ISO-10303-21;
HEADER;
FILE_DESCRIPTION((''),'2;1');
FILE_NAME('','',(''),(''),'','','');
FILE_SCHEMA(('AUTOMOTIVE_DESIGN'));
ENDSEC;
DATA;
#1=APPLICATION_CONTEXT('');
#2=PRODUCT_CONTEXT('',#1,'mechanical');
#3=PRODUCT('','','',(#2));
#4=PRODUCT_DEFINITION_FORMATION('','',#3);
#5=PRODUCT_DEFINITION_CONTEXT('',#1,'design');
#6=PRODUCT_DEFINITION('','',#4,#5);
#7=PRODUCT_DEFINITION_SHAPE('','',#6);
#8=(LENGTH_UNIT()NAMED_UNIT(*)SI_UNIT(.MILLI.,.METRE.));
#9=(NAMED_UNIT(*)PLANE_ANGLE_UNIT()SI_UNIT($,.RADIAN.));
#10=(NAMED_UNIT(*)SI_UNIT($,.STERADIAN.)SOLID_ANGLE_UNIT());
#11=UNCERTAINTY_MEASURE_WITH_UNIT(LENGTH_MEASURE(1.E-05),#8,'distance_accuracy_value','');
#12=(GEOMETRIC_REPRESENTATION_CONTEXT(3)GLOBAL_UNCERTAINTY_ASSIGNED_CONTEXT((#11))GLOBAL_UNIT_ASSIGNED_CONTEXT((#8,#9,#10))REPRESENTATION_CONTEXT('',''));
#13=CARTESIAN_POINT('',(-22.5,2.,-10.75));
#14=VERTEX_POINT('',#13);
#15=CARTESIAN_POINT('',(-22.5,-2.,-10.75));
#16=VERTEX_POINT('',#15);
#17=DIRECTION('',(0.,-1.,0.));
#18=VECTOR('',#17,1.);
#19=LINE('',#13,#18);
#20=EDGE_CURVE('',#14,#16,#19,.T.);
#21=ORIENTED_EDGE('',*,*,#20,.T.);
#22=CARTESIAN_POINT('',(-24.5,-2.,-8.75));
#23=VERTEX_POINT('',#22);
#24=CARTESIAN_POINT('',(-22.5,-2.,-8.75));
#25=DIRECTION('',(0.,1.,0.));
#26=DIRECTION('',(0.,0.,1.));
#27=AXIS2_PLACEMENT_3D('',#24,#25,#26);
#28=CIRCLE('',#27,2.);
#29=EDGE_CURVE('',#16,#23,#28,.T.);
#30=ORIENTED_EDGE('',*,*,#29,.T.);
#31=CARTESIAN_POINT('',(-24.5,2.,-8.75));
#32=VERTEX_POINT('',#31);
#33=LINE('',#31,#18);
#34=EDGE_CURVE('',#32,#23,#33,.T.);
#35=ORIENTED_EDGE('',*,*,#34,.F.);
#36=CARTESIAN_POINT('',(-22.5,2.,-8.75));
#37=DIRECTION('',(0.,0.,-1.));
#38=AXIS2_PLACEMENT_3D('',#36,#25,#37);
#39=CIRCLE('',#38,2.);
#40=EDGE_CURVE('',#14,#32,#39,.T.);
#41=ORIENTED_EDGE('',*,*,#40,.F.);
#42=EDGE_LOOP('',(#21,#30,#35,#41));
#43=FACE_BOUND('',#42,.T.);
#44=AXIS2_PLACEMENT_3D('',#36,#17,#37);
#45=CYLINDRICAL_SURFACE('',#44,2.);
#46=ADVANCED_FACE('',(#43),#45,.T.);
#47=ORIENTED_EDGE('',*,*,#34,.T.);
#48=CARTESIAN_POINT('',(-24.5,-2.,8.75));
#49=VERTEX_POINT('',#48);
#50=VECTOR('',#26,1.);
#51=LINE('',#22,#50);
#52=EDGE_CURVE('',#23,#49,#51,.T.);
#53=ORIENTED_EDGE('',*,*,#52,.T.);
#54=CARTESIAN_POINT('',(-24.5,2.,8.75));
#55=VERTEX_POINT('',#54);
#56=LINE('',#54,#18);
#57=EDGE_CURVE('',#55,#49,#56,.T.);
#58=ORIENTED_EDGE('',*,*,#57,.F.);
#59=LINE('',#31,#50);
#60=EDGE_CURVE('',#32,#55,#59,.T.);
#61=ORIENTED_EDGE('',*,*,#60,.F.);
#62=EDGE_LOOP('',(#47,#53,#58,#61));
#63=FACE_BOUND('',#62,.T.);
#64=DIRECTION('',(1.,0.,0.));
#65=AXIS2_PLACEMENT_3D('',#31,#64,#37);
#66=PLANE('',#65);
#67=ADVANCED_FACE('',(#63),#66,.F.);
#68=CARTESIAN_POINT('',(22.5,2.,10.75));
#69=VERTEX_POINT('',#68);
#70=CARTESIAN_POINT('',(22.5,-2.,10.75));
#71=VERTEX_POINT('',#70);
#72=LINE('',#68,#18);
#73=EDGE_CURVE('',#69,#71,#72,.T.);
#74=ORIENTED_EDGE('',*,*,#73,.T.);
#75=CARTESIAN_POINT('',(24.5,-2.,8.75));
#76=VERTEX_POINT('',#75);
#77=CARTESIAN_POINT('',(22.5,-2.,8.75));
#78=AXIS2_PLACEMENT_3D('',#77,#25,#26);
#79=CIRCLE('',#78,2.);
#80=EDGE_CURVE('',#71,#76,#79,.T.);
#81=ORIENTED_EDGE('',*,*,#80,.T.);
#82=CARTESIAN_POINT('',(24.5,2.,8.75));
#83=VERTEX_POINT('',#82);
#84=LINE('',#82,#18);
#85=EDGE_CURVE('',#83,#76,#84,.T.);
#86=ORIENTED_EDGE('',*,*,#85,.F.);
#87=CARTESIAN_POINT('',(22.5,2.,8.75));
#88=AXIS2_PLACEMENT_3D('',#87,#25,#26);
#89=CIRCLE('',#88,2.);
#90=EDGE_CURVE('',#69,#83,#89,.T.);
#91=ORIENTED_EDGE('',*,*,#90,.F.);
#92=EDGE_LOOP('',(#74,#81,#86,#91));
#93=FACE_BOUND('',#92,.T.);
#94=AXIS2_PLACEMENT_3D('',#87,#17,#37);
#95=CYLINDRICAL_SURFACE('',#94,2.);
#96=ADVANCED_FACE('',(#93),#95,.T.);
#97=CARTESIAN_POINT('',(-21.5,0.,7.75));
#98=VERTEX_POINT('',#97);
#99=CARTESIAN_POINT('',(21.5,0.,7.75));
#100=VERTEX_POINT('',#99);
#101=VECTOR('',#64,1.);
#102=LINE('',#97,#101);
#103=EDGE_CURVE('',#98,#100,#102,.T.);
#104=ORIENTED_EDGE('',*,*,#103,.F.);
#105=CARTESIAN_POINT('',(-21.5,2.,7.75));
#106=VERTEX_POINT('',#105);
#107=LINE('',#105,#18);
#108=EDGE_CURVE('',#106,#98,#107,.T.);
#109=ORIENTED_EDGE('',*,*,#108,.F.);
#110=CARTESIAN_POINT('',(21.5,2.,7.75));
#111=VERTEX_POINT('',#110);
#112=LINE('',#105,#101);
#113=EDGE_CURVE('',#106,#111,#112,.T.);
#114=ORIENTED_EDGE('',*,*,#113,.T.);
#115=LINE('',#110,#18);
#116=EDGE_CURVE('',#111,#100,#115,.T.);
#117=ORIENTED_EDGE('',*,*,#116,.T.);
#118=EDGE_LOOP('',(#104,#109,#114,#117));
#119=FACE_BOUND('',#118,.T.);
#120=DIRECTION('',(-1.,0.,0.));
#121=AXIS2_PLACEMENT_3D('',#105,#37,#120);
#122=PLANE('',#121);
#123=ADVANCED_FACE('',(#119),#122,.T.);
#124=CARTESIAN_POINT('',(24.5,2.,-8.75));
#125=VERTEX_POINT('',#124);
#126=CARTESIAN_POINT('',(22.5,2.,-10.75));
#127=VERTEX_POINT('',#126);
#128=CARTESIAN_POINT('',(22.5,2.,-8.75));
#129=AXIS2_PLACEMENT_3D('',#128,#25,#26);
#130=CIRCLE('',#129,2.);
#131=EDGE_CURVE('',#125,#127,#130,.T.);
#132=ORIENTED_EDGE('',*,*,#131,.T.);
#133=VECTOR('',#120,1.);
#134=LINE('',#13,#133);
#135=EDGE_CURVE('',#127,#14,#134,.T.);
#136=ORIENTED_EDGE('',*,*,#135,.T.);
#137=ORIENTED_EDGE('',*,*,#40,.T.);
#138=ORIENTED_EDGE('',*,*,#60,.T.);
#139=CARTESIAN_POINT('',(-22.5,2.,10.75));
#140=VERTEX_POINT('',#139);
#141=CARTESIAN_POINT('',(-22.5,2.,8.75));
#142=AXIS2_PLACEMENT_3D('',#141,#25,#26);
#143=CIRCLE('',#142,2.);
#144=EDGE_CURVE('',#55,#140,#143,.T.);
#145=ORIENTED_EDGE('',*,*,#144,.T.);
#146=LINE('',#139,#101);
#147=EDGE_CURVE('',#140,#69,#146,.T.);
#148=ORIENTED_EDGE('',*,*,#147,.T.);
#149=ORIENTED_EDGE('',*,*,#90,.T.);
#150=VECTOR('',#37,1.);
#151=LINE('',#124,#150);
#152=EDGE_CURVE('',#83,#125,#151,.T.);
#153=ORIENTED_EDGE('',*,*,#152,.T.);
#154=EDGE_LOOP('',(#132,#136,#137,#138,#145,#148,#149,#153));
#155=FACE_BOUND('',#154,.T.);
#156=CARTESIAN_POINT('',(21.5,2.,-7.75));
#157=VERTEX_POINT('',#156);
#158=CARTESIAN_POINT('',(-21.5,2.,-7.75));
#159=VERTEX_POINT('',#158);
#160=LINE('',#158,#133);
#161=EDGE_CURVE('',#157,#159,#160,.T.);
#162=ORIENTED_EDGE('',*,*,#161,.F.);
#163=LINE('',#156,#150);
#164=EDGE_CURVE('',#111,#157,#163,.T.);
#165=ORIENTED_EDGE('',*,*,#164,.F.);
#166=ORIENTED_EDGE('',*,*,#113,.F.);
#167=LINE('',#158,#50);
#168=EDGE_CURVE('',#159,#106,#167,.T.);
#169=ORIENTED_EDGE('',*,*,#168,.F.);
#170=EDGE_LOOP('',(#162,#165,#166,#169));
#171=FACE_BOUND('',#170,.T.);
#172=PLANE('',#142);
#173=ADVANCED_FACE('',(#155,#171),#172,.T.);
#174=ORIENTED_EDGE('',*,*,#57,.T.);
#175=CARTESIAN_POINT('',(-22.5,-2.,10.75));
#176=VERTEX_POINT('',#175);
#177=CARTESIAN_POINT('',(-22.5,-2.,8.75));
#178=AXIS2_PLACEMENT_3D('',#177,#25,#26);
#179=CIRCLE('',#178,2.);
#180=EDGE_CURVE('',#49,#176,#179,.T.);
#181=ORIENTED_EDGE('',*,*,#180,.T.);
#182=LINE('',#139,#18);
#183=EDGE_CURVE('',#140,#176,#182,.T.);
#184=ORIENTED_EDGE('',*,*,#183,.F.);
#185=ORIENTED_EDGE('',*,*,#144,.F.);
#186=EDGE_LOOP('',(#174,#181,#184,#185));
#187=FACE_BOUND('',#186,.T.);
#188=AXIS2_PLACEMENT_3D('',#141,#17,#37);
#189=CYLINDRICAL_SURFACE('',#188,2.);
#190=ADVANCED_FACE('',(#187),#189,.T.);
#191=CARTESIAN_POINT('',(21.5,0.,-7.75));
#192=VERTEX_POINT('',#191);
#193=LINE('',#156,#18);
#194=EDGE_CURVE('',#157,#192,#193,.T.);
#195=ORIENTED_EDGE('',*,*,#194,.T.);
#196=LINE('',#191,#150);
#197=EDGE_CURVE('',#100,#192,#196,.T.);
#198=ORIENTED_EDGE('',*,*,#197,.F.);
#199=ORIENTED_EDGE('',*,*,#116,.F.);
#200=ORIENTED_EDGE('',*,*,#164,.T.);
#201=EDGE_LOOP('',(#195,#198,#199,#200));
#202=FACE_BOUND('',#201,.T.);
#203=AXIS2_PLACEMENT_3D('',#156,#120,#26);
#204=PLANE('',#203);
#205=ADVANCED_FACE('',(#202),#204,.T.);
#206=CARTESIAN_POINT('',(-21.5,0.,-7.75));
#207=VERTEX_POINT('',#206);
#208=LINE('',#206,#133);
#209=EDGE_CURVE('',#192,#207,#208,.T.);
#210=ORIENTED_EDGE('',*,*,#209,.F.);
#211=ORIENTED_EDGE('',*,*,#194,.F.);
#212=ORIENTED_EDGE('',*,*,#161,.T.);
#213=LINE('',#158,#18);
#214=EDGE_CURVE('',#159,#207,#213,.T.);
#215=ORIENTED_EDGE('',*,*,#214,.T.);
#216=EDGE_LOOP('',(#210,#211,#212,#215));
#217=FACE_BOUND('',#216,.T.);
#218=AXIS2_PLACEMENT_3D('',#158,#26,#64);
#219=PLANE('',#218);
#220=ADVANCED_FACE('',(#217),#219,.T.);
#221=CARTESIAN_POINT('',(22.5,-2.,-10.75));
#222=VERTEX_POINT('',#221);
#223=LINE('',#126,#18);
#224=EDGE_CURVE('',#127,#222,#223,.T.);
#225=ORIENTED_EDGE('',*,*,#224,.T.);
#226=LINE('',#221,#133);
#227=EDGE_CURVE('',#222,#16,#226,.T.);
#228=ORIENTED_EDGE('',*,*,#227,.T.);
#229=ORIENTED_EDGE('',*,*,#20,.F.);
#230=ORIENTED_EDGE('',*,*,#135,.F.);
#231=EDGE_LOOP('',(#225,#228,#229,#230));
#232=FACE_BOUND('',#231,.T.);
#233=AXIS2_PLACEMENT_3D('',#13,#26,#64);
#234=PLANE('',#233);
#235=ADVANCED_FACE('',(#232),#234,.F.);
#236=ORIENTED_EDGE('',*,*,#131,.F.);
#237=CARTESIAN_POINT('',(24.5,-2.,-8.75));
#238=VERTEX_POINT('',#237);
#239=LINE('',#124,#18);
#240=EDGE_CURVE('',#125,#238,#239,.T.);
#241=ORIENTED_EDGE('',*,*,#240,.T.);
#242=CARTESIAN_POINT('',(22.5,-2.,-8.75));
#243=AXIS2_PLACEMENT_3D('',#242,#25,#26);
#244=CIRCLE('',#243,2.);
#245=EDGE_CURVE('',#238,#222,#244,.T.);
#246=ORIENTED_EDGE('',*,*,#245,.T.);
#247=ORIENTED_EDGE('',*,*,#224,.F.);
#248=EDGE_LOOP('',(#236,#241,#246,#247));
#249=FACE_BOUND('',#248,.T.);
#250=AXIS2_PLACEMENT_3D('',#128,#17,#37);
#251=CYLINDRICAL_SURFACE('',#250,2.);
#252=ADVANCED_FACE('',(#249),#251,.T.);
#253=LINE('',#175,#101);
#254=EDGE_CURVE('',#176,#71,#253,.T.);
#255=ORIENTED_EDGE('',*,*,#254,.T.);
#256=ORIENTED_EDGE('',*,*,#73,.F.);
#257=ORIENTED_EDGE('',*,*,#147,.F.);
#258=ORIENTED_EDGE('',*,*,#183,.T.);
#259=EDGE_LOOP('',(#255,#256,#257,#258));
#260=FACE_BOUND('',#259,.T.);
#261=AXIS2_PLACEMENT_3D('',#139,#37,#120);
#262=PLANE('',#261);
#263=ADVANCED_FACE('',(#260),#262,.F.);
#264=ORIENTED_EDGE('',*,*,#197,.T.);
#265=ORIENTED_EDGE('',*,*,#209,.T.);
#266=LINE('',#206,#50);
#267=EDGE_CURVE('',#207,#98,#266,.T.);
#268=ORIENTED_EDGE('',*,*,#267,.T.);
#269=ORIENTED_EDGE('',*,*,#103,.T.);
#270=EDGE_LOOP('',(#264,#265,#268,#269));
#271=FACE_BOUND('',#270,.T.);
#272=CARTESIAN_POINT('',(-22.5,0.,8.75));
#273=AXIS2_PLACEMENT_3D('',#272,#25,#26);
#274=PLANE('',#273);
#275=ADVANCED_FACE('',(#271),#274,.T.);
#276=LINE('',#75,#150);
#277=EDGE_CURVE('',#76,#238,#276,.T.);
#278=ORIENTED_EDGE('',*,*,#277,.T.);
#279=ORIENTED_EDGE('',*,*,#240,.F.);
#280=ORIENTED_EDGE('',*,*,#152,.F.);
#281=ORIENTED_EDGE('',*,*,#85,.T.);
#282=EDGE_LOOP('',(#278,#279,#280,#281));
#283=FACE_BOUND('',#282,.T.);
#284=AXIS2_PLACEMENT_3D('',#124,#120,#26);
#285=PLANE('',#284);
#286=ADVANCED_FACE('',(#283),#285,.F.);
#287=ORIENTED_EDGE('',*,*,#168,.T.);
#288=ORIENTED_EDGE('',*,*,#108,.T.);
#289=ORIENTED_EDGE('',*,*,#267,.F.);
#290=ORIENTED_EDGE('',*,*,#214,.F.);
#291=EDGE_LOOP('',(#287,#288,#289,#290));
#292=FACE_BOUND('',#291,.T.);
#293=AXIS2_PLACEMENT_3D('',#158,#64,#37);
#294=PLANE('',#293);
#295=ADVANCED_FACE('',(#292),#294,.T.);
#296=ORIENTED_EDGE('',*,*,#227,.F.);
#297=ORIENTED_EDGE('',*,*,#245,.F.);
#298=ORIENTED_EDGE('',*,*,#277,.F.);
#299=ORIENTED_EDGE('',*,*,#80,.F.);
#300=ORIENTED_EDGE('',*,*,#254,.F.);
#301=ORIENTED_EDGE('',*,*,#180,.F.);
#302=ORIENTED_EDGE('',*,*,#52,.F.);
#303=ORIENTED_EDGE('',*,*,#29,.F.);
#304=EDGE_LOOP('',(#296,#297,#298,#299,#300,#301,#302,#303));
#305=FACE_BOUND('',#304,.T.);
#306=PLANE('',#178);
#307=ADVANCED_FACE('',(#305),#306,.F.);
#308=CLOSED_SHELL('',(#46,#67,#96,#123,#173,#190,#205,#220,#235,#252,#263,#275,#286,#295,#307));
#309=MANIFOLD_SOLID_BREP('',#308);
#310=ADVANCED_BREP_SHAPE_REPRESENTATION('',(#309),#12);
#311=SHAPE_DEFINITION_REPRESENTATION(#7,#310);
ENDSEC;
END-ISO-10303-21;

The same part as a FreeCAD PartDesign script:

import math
import FreeCAD as App
import Part
import Sketcher
from FreeCAD import Vector

doc = App.newDocument("Part")
body = doc.addObject("PartDesign::Body", "Body")

sketch1 = body.newObject("Sketcher::SketchObject", "Sketch")
sketch1.AttachmentSupport = (doc.getObject("XZ_Plane"), [""])
sketch1.MapMode = "FlatFace"
sketch1.addGeometry(Part.LineSegment(Vector(-24.5, -8.8, 0), Vector(-24.5, 8.8, 0)), False)
sketch1.addGeometry(Part.ArcOfCircle(Part.Circle(Vector(-22.5, 8.7, 0), Vector(0, 0, 1), 2), math.radians(90), math.radians(180)), False)
sketch1.addGeometry(Part.LineSegment(Vector(-22.5, 10.8, 0), Vector(22.5, 10.8, 0)), False)
sketch1.addGeometry(Part.ArcOfCircle(Part.Circle(Vector(22.5, 8.7, 0), Vector(0, 0, 1), 2), math.radians(0), math.radians(90)), False)
sketch1.addGeometry(Part.LineSegment(Vector(24.5, 8.8, 0), Vector(24.5, -8.8, 0)), False)
sketch1.addGeometry(Part.ArcOfCircle(Part.Circle(Vector(22.5, -8.7, 0), Vector(0, 0, 1), 2), math.radians(-90), math.radians(0)), False)
sketch1.addGeometry(Part.LineSegment(Vector(22.5, -10.8, 0), Vector(-22.5, -10.8, 0)), False)
sketch1.addGeometry(Part.ArcOfCircle(Part.Circle(Vector(-22.5, -8.7, 0), Vector(0, 0, 1), 2), math.radians(-180), math.radians(-90)), False)
sketch1.addGeometry(Part.LineSegment(Vector(21.5, 7.8, 0), Vector(-21.5, 7.8, 0)), False)
sketch1.addGeometry(Part.LineSegment(Vector(-21.5, 7.8, 0), Vector(-21.5, -7.8, 0)), False)
sketch1.addGeometry(Part.LineSegment(Vector(-21.5, -7.8, 0), Vector(21.5, -7.8, 0)), False)
sketch1.addGeometry(Part.LineSegment(Vector(21.5, -7.8, 0), Vector(21.5, 7.8, 0)), False)
sketch1.addConstraint(Sketcher.Constraint("Tangent", 0, 2, 1, 2))
sketch1.addConstraint(Sketcher.Constraint("Tangent", 1, 1, 2, 1))
sketch1.addConstraint(Sketcher.Constraint("Tangent", 2, 2, 3, 2))
sketch1.addConstraint(Sketcher.Constraint("Tangent", 3, 1, 4, 1))
sketch1.addConstraint(Sketcher.Constraint("Tangent", 4, 2, 5, 2))
sketch1.addConstraint(Sketcher.Constraint("Tangent", 5, 1, 6, 1))
sketch1.addConstraint(Sketcher.Constraint("Tangent", 6, 2, 7, 2))
sketch1.addConstraint(Sketcher.Constraint("Tangent", 7, 1, 0, 1))
sketch1.addConstraint(Sketcher.Constraint("Coincident", 8, 2, 9, 1))
sketch1.addConstraint(Sketcher.Constraint("Coincident", 9, 2, 10, 1))
sketch1.addConstraint(Sketcher.Constraint("Coincident", 10, 2, 11, 1))
sketch1.addConstraint(Sketcher.Constraint("Coincident", 11, 2, 8, 1))
sketch1.addConstraint(Sketcher.Constraint("Vertical", 0))
sketch1.addConstraint(Sketcher.Constraint("Horizontal", 2))
sketch1.addConstraint(Sketcher.Constraint("Vertical", 4))
sketch1.addConstraint(Sketcher.Constraint("Horizontal", 6))
sketch1.addConstraint(Sketcher.Constraint("Horizontal", 8))
sketch1.addConstraint(Sketcher.Constraint("Vertical", 9))
sketch1.addConstraint(Sketcher.Constraint("Horizontal", 10))
sketch1.addConstraint(Sketcher.Constraint("Vertical", 11))
sketch1.addConstraint(Sketcher.Constraint("Equal", 1, 3))
sketch1.addConstraint(Sketcher.Constraint("Equal", 3, 5))
sketch1.addConstraint(Sketcher.Constraint("Equal", 5, 7))
sketch1.addConstraint(Sketcher.Constraint("Symmetric", 1, 3, 5, 3, -1, 1))
sketch1.addConstraint(Sketcher.Constraint("Symmetric", 8, 2, 10, 2, -1, 1))
sketch1.addConstraint(Sketcher.Constraint("Radius", 1, 2.0))
sketch1.addConstraint(Sketcher.Constraint("DistanceX", 2, 1, 2, 2, 45.0))
sketch1.addConstraint(Sketcher.Constraint("DistanceX", 8, 2, 8, 1, 43.0))
sketch1.addConstraint(Sketcher.Constraint("DistanceY", 0, 1, 0, 2, 17.5))
sketch1.addConstraint(Sketcher.Constraint("DistanceY", 9, 2, 9, 1, 15.5))
pad1 = body.newObject("PartDesign::Pad", "Pad")
pad1.Profile = sketch1
pad1.Length = 2
pad1.Reversed = True

sketch2 = body.newObject("Sketcher::SketchObject", "Sketch001")
sketch2.AttachmentSupport = (doc.getObject("XZ_Plane"), [""])
sketch2.MapMode = "FlatFace"
sketch2.AttachmentOffset = App.Placement(Vector(0, 0, 2), App.Rotation())
sketch2.addGeometry(Part.LineSegment(Vector(-24.5, -8.8, 0), Vector(-24.5, 8.8, 0)), False)
sketch2.addGeometry(Part.ArcOfCircle(Part.Circle(Vector(-22.5, 8.7, 0), Vector(0, 0, 1), 2), math.radians(90), math.radians(180)), False)
sketch2.addGeometry(Part.LineSegment(Vector(-22.5, 10.8, 0), Vector(22.5, 10.8, 0)), False)
sketch2.addGeometry(Part.ArcOfCircle(Part.Circle(Vector(22.5, 8.7, 0), Vector(0, 0, 1), 2), math.radians(0), math.radians(90)), False)
sketch2.addGeometry(Part.LineSegment(Vector(24.5, 8.8, 0), Vector(24.5, -8.8, 0)), False)
sketch2.addGeometry(Part.ArcOfCircle(Part.Circle(Vector(22.5, -8.7, 0), Vector(0, 0, 1), 2), math.radians(-90), math.radians(0)), False)
sketch2.addGeometry(Part.LineSegment(Vector(22.5, -10.8, 0), Vector(-22.5, -10.8, 0)), False)
sketch2.addGeometry(Part.ArcOfCircle(Part.Circle(Vector(-22.5, -8.7, 0), Vector(0, 0, 1), 2), math.radians(-180), math.radians(-90)), False)
sketch2.addConstraint(Sketcher.Constraint("Tangent", 0, 2, 1, 2))
sketch2.addConstraint(Sketcher.Constraint("Tangent", 1, 1, 2, 1))
sketch2.addConstraint(Sketcher.Constraint("Tangent", 2, 2, 3, 2))
sketch2.addConstraint(Sketcher.Constraint("Tangent", 3, 1, 4, 1))
sketch2.addConstraint(Sketcher.Constraint("Tangent", 4, 2, 5, 2))
sketch2.addConstraint(Sketcher.Constraint("Tangent", 5, 1, 6, 1))
sketch2.addConstraint(Sketcher.Constraint("Tangent", 6, 2, 7, 2))
sketch2.addConstraint(Sketcher.Constraint("Tangent", 7, 1, 0, 1))
sketch2.addConstraint(Sketcher.Constraint("Vertical", 0))
sketch2.addConstraint(Sketcher.Constraint("Horizontal", 2))
sketch2.addConstraint(Sketcher.Constraint("Vertical", 4))
sketch2.addConstraint(Sketcher.Constraint("Horizontal", 6))
sketch2.addConstraint(Sketcher.Constraint("Equal", 1, 3))
sketch2.addConstraint(Sketcher.Constraint("Equal", 3, 5))
sketch2.addConstraint(Sketcher.Constraint("Equal", 5, 7))
sketch2.addConstraint(Sketcher.Constraint("Symmetric", 1, 3, 5, 3, -1, 1))
sketch2.addConstraint(Sketcher.Constraint("Radius", 1, 2.0))
sketch2.addConstraint(Sketcher.Constraint("DistanceX", 2, 1, 2, 2, 45.0))
sketch2.addConstraint(Sketcher.Constraint("DistanceY", 0, 1, 0, 2, 17.5))
pad2 = body.newObject("PartDesign::Pad", "Pad001")
pad2.Profile = sketch2
pad2.Length = 2
pad2.Reversed = True

doc.recompute()
